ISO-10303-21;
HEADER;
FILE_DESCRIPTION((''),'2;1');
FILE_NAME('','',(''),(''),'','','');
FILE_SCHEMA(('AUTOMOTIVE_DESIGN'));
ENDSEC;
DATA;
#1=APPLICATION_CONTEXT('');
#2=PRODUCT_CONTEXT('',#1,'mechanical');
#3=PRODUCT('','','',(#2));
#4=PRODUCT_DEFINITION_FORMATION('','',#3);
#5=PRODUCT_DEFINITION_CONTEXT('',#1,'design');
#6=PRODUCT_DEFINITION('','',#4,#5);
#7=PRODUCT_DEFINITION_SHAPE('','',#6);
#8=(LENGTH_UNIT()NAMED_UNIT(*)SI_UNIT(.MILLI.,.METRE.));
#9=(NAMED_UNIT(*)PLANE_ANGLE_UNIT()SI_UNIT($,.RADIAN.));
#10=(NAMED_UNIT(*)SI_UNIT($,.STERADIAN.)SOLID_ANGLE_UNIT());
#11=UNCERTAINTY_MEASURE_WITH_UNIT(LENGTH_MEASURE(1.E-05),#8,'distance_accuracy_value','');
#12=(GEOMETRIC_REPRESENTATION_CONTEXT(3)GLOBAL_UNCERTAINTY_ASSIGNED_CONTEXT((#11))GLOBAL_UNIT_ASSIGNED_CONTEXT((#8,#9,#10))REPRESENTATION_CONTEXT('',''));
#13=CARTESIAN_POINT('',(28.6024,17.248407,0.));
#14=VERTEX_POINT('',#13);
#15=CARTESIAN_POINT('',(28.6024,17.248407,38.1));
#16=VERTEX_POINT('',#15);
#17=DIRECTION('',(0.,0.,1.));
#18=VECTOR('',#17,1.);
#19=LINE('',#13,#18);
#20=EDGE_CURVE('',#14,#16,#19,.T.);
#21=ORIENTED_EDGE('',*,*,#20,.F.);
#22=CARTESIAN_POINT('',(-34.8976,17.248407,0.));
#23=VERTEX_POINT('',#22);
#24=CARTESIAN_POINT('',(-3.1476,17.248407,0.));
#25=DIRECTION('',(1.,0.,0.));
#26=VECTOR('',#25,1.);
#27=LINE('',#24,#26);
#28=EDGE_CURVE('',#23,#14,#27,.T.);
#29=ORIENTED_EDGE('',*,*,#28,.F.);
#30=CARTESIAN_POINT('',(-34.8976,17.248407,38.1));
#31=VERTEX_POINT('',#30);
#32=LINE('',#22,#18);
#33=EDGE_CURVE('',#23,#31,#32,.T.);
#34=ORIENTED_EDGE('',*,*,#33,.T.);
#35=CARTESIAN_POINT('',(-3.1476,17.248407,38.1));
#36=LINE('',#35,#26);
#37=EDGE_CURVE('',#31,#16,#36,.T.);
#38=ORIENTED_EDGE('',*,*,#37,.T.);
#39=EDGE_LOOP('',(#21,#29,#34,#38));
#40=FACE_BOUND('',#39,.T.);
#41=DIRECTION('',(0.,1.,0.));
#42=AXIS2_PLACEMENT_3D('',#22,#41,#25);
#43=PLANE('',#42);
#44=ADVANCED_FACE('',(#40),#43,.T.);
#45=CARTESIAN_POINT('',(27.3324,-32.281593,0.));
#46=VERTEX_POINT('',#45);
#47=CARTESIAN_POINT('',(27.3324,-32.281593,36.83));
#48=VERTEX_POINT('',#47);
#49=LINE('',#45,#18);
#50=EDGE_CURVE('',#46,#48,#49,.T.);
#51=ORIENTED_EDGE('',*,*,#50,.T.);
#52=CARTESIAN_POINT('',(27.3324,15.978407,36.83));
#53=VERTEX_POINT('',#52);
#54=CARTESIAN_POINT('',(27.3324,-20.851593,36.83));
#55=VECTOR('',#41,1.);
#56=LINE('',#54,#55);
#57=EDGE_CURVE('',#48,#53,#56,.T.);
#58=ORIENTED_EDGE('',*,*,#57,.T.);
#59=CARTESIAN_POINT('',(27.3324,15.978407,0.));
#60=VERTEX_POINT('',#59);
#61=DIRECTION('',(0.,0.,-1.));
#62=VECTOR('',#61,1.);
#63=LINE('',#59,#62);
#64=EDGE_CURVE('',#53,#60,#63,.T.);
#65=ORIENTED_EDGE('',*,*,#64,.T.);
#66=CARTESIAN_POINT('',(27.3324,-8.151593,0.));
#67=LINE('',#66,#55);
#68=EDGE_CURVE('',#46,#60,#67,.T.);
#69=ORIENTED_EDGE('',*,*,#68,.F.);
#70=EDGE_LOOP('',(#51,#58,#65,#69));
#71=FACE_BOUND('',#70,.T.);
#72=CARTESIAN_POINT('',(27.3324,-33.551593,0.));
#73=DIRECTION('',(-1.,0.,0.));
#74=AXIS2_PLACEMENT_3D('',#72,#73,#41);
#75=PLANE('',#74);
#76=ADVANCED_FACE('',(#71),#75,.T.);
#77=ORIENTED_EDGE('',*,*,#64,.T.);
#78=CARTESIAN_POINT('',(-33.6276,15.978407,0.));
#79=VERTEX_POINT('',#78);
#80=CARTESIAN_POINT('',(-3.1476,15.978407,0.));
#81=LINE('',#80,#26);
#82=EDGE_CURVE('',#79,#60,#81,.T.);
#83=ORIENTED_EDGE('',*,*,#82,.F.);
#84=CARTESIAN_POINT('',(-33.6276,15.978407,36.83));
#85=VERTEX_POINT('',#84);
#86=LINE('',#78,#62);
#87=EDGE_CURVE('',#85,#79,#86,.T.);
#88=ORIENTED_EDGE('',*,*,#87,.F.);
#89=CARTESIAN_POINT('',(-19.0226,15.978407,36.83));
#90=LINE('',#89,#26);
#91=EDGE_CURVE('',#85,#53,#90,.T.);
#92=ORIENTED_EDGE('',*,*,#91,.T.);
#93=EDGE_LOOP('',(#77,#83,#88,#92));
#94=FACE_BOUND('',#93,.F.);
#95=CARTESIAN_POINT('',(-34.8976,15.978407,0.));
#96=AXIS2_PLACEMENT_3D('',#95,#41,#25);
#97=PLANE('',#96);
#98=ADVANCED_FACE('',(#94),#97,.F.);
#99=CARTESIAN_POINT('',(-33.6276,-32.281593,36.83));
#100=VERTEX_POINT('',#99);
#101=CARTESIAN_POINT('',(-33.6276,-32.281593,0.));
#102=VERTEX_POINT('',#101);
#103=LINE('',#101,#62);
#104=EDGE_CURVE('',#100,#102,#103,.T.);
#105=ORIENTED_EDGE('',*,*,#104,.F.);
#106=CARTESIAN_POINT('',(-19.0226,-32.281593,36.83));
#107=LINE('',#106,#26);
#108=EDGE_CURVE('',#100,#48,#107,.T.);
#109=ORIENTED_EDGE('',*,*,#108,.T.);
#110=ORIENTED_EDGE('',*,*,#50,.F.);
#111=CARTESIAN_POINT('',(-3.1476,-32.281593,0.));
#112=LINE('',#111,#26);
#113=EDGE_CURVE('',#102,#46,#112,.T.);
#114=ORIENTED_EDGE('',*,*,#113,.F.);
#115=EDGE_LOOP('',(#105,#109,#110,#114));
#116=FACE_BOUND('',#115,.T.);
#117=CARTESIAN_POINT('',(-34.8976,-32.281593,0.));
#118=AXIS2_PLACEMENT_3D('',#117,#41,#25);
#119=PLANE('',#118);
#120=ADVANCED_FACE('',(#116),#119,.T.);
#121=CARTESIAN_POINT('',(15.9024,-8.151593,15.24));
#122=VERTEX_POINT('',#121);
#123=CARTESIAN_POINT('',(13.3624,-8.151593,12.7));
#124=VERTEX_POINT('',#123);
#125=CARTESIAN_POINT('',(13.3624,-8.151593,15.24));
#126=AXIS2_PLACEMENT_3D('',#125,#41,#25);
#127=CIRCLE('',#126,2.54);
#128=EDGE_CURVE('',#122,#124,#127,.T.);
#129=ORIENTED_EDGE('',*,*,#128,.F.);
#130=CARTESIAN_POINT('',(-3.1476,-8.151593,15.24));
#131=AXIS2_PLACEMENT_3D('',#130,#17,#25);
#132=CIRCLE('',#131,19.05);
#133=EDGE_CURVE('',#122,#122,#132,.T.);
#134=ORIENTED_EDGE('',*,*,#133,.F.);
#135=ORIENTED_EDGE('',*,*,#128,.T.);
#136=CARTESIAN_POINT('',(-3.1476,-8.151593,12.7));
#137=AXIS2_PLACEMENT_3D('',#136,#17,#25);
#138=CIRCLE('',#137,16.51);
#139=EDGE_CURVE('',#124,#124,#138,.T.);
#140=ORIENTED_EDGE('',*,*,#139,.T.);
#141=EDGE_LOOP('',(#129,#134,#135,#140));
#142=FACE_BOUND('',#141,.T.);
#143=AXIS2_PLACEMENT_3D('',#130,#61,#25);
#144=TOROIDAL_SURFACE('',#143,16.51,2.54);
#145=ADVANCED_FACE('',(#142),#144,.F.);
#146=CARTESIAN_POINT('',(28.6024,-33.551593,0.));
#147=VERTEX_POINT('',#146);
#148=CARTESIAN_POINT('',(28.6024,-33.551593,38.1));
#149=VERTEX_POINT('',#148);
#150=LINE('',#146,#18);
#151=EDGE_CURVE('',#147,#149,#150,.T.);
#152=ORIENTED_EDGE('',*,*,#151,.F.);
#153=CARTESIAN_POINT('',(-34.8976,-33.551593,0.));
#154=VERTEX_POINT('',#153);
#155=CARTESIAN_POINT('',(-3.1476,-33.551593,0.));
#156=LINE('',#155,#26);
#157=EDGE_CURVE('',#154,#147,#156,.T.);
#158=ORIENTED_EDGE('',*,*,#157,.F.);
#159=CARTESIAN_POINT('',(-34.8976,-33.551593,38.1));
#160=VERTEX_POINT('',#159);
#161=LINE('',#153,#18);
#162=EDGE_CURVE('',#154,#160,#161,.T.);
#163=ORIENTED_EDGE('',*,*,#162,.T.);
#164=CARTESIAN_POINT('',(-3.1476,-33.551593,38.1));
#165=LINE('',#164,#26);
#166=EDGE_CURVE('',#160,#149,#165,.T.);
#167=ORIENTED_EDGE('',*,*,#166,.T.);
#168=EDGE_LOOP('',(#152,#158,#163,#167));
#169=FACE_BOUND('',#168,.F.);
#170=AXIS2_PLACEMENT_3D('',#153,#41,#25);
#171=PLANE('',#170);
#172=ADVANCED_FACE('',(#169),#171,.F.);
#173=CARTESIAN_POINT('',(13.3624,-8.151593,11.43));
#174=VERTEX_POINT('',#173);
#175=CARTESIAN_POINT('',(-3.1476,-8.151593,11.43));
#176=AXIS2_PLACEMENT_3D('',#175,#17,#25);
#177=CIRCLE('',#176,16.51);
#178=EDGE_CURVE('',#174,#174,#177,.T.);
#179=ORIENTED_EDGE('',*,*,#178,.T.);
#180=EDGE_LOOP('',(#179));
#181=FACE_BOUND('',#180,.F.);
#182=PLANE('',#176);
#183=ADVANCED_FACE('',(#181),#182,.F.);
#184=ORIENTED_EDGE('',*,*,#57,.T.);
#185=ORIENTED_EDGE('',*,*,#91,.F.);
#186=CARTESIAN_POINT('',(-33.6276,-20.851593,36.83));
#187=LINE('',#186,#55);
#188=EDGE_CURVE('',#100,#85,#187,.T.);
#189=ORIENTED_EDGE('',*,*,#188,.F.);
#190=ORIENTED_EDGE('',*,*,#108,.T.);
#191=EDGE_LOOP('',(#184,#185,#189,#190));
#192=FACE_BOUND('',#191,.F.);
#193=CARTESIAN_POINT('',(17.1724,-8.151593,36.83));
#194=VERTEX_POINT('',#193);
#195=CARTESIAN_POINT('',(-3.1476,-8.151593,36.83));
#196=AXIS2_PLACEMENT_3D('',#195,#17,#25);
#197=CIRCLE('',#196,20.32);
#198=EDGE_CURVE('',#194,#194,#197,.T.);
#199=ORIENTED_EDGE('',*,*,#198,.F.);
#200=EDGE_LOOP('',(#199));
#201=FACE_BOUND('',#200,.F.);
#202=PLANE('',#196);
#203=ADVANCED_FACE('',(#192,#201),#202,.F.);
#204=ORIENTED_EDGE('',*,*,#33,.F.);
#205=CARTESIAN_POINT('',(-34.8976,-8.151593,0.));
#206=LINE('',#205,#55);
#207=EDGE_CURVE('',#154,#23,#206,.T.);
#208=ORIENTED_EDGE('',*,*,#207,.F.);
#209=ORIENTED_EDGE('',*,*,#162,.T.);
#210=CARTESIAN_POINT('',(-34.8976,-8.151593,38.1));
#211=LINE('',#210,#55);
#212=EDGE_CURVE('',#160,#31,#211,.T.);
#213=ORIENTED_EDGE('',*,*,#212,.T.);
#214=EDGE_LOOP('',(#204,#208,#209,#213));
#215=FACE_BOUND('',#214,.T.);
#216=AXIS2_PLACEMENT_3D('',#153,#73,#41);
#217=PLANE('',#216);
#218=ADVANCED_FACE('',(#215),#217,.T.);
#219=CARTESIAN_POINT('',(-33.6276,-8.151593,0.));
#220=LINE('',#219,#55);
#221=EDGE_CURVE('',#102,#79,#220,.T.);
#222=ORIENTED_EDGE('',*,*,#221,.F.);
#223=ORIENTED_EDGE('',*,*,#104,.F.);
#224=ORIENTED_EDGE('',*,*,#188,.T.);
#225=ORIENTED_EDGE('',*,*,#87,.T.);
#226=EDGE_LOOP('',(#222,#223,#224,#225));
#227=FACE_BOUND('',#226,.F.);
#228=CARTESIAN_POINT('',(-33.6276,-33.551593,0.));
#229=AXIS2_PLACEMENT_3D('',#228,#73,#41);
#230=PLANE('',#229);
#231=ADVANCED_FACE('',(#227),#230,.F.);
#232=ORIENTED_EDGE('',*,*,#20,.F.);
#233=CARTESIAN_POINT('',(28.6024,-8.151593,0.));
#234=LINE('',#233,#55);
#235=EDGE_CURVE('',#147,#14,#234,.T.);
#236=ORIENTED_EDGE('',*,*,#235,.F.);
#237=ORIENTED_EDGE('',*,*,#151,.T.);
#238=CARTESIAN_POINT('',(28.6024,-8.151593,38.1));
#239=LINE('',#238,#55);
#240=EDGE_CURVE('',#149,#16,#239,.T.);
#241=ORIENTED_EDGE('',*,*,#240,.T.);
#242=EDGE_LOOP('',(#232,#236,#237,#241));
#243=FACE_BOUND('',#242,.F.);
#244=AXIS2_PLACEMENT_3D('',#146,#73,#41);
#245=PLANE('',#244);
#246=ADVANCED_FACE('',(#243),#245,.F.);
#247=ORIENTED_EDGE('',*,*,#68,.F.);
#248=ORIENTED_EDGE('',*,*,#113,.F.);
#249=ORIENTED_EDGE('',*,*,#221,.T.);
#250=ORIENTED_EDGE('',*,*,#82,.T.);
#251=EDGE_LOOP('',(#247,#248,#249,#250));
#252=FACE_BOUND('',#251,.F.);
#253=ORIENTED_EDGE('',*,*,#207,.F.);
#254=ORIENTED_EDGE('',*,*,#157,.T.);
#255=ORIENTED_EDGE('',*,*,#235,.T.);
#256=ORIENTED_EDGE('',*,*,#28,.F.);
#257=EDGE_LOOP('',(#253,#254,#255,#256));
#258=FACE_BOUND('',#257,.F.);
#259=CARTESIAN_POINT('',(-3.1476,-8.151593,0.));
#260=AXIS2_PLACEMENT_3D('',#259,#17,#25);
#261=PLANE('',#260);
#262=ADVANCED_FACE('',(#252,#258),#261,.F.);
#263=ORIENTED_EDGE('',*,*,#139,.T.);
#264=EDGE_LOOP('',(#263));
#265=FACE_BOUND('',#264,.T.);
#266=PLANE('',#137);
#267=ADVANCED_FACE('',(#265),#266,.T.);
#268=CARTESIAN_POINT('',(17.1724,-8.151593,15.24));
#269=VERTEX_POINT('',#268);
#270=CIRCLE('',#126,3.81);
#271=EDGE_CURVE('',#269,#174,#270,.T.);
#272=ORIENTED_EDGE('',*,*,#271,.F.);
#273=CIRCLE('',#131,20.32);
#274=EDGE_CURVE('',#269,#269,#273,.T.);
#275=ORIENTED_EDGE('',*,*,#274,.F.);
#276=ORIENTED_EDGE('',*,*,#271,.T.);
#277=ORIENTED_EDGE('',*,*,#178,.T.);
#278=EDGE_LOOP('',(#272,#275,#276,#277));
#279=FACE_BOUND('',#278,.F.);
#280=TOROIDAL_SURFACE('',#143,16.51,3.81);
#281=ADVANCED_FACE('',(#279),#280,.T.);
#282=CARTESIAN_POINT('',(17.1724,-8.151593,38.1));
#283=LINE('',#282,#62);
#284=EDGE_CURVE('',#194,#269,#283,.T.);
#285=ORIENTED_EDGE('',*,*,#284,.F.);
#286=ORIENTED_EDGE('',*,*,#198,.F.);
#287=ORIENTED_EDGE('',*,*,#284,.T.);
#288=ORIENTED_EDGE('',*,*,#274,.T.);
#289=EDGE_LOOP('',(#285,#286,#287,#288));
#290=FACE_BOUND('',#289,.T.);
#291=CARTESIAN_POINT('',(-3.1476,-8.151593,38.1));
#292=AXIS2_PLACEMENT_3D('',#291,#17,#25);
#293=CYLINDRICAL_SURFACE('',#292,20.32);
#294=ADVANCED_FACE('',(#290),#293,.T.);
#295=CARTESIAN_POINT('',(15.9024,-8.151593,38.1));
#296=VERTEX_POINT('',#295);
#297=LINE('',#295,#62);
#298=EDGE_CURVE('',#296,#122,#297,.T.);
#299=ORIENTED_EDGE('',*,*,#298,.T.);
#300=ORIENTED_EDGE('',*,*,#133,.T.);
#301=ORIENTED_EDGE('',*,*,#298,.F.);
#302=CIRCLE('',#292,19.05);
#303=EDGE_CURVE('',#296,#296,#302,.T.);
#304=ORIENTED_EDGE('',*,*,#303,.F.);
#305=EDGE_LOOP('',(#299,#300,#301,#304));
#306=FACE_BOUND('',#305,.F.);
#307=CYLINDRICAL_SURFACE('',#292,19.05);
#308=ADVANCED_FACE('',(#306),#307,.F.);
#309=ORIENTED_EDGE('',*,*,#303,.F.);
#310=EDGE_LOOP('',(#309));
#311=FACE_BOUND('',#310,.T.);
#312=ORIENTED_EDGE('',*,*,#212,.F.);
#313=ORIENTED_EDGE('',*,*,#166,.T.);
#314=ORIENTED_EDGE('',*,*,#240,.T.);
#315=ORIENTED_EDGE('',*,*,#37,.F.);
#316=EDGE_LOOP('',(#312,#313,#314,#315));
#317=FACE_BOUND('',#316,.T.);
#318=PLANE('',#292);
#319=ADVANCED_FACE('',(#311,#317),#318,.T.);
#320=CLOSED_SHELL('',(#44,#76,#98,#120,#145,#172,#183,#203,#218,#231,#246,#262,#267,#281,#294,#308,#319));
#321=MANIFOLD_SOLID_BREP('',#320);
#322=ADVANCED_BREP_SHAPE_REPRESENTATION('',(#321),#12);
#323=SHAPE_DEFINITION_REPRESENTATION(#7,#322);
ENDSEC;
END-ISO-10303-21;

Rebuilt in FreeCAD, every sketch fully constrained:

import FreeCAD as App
import Part
import Sketcher

V = App.Vector
Q = App.Units.Quantity


def edges_at(feature, points):
    """Names of the edges that pass closest to the given points."""
    edges = feature.Shape.Edges
    near = lambda p: min(range(len(edges)), key=lambda i: edges[i].distToShape(Part.Vertex(*p))[0])
    return sorted({f"Edge{near(p) + 1}" for p in points})


def faces_at(feature, points):
    """Names of the faces that lie closest to the given points."""
    faces = feature.Shape.Faces
    near = lambda p: min(range(len(faces)), key=lambda i: faces[i].distToShape(Part.Vertex(*p))[0])
    return sorted({f"Face{near(p) + 1}" for p in points})

doc = App.newDocument("Part")
body = doc.addObject("PartDesign::Body", "Body")

sketch1 = body.newObject("Sketcher::SketchObject", "Sketch")
sketch1.AttachmentSupport = (doc.getObject("XY_Plane"), [""])
sketch1.MapMode = "FlatFace"
sketch1.addGeometry(Part.LineSegment(V(-35, 17, 0), V(-35, -34, 0)), False)
sketch1.addGeometry(Part.LineSegment(V(-35, -34, 0), V(29, -34, 0)), False)
sketch1.addGeometry(Part.LineSegment(V(29, -34, 0), V(29, 17, 0)), False)
sketch1.addGeometry(Part.LineSegment(V(29, 17, 0), V(-35, 17, 0)), False)
sketch1.addConstraint(Sketcher.Constraint("Coincident", 0, 2, 1, 1))
sketch1.addConstraint(Sketcher.Constraint("Coincident", 1, 2, 2, 1))
sketch1.addConstraint(Sketcher.Constraint("Coincident", 2, 2, 3, 1))
sketch1.addConstraint(Sketcher.Constraint("Coincident", 3, 2, 0, 1))
sketch1.addConstraint(Sketcher.Constraint("Vertical", 0))
sketch1.addConstraint(Sketcher.Constraint("Horizontal", 1))
sketch1.addConstraint(Sketcher.Constraint("Vertical", 2))
sketch1.addConstraint(Sketcher.Constraint("Horizontal", 3))
sketch1.addConstraint(Sketcher.Constraint("DistanceY", 0, 2, 0, 1, Q("2 in")))
sketch1.addConstraint(Sketcher.Constraint("DistanceX", 1, 1, 1, 2, Q("2.5 in")))
sketch1.addConstraint(Sketcher.Constraint("DistanceX", 0, 2, -1, 1, 34.8976))
sketch1.addConstraint(Sketcher.Constraint("DistanceY", 0, 2, -1, 1, 33.551593))
pad1 = body.newObject("PartDesign::Pad", "Pad")
pad1.Profile = sketch1
pad1.Length = Q("1.5 in")

sketch2 = body.newObject("Sketcher::SketchObject", "Sketch001")
sketch2.AttachmentSupport = (doc.getObject("XY_Plane"), [""])
sketch2.MapMode = "FlatFace"
sketch2.AttachmentOffset = App.Placement(V(0, 0, 1.5 * 25.4), App.Rotation())
sketch2.addGeometry(Part.Circle(V(-3, -8, 0), V(0, 0, 1), 19), False)
sketch2.addConstraint(Sketcher.Constraint("Diameter", 0, Q("1.5 in")))
sketch2.addConstraint(Sketcher.Constraint("DistanceX", 0, 3, -1, 1, 3.1476))
sketch2.addConstraint(Sketcher.Constraint("DistanceY", 0, 3, -1, 1, 8.151593))
pocket1 = body.newObject("PartDesign::Pocket", "Pocket")
pocket1.Profile = sketch2
pocket1.Length = Q("1 in")
doc.recompute()

fillet = body.newObject("PartDesign::Fillet", "Fillet")
fillet.Base = (pocket1, edges_at(pocket1, [(-22.198, -8.152, 12.7)]))
fillet.Radius = Q("0.1 in")
doc.recompute()

thickness = body.newObject("PartDesign::Thickness", "Thickness")
thickness.Base = (fillet, faces_at(fillet, [(-3.148, -8.152, 0)]))
thickness.Value = Q("0.05 in")
thickness.Reversed = True
thickness.Join = "Arc"

doc.recompute()
